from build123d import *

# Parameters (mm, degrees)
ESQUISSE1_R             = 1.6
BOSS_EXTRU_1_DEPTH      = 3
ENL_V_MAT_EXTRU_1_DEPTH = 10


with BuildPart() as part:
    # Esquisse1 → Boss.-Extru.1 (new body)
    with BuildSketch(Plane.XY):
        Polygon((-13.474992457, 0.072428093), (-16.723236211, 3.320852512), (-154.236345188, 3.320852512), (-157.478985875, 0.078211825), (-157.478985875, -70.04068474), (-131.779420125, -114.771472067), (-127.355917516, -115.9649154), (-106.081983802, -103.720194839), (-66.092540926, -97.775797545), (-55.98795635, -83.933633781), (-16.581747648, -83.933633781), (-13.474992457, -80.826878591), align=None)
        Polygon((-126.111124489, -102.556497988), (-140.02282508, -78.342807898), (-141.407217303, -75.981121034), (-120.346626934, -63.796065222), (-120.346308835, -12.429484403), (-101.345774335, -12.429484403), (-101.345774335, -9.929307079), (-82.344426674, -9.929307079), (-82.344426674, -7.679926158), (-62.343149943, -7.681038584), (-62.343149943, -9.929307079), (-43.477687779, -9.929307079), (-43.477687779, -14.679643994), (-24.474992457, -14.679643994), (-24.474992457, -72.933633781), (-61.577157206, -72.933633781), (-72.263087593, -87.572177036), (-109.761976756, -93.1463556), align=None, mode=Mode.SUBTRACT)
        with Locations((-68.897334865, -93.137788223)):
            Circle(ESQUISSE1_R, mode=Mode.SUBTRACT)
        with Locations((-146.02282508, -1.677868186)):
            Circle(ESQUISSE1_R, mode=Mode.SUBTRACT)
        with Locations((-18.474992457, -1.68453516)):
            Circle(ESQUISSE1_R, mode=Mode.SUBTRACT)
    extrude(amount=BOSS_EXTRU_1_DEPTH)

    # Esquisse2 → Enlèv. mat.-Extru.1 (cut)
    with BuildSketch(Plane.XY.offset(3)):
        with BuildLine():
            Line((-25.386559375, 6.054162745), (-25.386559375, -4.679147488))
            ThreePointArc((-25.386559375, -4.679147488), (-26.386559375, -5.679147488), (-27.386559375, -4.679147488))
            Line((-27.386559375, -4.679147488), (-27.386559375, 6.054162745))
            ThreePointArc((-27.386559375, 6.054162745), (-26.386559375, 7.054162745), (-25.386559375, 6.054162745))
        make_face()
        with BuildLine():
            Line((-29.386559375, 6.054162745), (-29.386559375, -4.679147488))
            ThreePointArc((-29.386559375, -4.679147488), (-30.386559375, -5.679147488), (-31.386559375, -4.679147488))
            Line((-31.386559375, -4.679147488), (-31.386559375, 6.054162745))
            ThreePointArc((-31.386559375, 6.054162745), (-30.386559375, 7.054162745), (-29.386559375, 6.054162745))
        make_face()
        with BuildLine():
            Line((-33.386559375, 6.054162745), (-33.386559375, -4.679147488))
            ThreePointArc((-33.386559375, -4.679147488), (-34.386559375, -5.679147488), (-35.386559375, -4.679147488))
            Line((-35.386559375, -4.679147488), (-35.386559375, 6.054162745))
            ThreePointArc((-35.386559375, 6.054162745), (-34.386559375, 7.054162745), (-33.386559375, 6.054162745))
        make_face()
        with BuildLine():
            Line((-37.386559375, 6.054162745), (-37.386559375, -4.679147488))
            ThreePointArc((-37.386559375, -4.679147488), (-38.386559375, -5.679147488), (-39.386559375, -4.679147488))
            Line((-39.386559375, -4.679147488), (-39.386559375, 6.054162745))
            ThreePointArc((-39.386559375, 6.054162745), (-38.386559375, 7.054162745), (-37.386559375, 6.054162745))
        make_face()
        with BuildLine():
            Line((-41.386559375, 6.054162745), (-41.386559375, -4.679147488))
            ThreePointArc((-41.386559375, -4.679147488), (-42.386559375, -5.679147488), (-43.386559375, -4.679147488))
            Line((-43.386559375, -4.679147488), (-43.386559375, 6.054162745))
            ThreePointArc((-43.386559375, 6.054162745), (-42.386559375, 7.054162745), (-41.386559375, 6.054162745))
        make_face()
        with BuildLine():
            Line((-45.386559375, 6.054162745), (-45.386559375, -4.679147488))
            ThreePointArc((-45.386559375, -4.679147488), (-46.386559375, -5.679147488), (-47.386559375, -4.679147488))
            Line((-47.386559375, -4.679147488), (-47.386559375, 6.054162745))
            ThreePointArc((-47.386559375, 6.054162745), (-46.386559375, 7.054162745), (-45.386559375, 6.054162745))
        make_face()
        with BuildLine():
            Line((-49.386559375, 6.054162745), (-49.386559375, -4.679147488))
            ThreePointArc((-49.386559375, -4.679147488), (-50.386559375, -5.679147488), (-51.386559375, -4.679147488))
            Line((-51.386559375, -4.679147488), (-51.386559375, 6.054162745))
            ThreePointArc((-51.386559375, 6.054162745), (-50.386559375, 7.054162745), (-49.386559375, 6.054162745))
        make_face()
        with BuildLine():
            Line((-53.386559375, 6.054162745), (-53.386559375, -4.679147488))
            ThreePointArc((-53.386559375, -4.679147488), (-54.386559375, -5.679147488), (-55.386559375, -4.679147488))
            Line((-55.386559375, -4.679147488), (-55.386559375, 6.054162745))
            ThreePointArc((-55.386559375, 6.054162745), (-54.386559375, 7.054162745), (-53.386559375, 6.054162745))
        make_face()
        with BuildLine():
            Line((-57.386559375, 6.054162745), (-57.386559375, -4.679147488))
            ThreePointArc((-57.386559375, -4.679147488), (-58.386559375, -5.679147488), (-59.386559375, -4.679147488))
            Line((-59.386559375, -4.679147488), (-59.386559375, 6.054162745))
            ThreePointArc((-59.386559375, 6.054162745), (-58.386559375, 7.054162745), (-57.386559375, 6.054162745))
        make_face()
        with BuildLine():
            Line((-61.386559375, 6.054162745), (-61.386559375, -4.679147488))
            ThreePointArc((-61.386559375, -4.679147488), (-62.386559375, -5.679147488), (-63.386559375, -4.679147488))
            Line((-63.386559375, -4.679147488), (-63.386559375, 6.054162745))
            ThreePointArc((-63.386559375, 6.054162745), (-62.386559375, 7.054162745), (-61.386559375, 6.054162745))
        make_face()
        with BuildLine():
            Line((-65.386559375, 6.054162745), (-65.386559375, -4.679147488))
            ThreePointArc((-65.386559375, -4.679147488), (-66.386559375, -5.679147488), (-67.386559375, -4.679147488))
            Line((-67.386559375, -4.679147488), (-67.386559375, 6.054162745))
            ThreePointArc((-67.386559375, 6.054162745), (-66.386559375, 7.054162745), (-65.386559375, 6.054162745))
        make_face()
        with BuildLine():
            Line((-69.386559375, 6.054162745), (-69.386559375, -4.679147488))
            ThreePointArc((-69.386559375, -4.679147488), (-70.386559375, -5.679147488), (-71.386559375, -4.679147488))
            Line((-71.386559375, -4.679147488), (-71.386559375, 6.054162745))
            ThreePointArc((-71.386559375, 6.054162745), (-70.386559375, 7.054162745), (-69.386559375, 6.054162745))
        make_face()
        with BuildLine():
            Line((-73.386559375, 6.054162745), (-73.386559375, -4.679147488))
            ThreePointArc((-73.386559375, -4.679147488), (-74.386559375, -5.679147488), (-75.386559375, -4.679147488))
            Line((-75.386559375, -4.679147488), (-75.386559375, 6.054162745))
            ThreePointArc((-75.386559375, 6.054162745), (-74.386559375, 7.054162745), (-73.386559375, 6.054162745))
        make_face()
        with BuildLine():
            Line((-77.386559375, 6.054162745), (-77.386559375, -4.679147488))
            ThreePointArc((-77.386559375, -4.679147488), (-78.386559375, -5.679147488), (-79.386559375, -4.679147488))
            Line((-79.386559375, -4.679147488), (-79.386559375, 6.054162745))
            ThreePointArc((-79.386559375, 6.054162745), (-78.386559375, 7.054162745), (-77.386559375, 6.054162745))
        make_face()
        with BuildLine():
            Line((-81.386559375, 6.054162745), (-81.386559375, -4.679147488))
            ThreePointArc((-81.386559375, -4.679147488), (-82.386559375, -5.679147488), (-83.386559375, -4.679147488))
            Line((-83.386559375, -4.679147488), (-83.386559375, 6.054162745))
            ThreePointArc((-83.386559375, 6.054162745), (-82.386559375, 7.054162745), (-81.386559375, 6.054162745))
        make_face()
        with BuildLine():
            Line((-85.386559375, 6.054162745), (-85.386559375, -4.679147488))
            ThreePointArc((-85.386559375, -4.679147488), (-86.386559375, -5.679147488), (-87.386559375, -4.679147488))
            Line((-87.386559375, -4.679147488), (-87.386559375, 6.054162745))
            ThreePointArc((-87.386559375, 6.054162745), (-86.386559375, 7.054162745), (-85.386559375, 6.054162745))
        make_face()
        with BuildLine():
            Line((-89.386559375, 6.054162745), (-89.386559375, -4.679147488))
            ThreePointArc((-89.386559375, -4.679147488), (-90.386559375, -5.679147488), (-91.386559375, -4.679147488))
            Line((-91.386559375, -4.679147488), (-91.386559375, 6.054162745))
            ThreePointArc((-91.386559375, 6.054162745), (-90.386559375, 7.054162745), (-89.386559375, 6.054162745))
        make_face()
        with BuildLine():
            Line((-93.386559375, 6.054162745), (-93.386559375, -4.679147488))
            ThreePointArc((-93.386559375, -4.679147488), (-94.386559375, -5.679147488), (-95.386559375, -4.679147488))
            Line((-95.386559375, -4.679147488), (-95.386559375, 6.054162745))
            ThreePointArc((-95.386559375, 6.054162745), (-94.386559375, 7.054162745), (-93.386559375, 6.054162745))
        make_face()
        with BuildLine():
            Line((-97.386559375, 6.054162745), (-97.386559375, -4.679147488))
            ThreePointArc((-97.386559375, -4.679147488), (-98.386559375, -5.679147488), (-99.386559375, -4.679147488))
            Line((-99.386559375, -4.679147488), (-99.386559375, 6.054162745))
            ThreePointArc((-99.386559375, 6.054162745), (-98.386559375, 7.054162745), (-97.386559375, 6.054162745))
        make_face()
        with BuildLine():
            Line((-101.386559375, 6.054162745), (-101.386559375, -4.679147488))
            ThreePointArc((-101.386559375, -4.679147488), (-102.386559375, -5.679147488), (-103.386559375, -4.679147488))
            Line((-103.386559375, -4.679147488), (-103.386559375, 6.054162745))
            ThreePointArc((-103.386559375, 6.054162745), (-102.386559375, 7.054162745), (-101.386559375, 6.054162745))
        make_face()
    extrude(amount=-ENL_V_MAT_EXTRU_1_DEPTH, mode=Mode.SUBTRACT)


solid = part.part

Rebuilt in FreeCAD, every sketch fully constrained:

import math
import FreeCAD as App
import Part
import Sketcher
from FreeCAD import Vector
Q = App.Units.Quantity


def add_polygon(sketch, points):
    """Adds a closed chain of lines whose ends are joined by coincident constraints."""
    first, n = sketch.GeometryCount, len(points)
    for a, b in zip(points, points[1:] + points[:1]):
        sketch.addGeometry(Part.LineSegment(App.Vector(*a, 0), App.Vector(*b, 0)), False)
    for i in range(n):
        sketch.addConstraint(Sketcher.Constraint("Coincident", first + i, 2, first + (i + 1) % n, 1))

doc = App.newDocument("Part")
params = doc.addObject("Spreadsheet::Sheet", "Params")
for row, (alias, value) in enumerate([
    ("sketch1_diameter", "3.2 mm"),
    ("pad1_length", "3 mm"),
    ("sketch2_radius", "1 mm"),
    ("pocket1_length", "10 mm"),
], start=1):
    params.set(f"A{row}", alias)
    params.set(f"B{row}", "=" + value)
    params.setAlias(f"B{row}", alias)

body = doc.addObject("PartDesign::Body", "Body")

sketch1 = body.newObject("Sketcher::SketchObject", "Sketch")
sketch1.AttachmentSupport = (doc.getObject("XY_Plane"), [""])
sketch1.MapMode = "FlatFace"
add_polygon(sketch1, [(-13.474992, 0.072428), (-16.723236, 3.320853), (-154.236345, 3.320853), (-157.478986, 0.078212), (-157.478986, -70.040685), (-131.77942, -114.771472), (-127.355918, -115.964915), (-106.081984, -103.720195), (-66.092541, -97.775798), (-55.987956, -83.933634), (-16.581748, -83.933634), (-13.474992, -80.826879)])
add_polygon(sketch1, [(-109.761977, -93.146356), (-126.111124, -102.556498), (-140.022825, -78.342808), (-141.407217, -75.981121), (-120.346627, -63.796065), (-120.346309, -12.429484), (-101.345774, -12.429484), (-101.345774, -9.929307), (-82.344427, -9.929307), (-82.344427, -7.679926), (-62.34315, -7.681039), (-62.34315, -9.929307), (-43.477688, -9.929307), (-43.477688, -14.679644), (-24.474992, -14.679644), (-24.474992, -72.933634), (-61.577157, -72.933634), (-72.263088, -87.572177)])
sketch1.addGeometry(Part.Circle(Vector(-68.897335, -93.137788, 0), Vector(0, 0, 1), 1.6), False)
sketch1.addGeometry(Part.Circle(Vector(-146.022825, -1.677868, 0), Vector(0, 0, 1), 1.6), False)
sketch1.addGeometry(Part.Circle(Vector(-18.474992, -1.684535, 0), Vector(0, 0, 1), 1.6), False)
sketch1.addConstraint(Sketcher.Constraint("Horizontal", 1))
sketch1.addConstraint(Sketcher.Constraint("Vertical", 3))
sketch1.addConstraint(Sketcher.Constraint("Horizontal", 9))
sketch1.addConstraint(Sketcher.Constraint("Vertical", 11))
sketch1.addConstraint(Sketcher.Constraint("Horizontal", 17))
sketch1.addConstraint(Sketcher.Constraint("Vertical", 18))
sketch1.addConstraint(Sketcher.Constraint("Horizontal", 19))
sketch1.addConstraint(Sketcher.Constraint("Vertical", 20))
sketch1.addConstraint(Sketcher.Constraint("Vertical", 22))
sketch1.addConstraint(Sketcher.Constraint("Horizontal", 23))
sketch1.addConstraint(Sketcher.Constraint("Vertical", 24))
sketch1.addConstraint(Sketcher.Constraint("Horizontal", 25))
sketch1.addConstraint(Sketcher.Constraint("Vertical", 26))
sketch1.addConstraint(Sketcher.Constraint("Horizontal", 27))
sketch1.addConstraint(Sketcher.Constraint("Equal", 30, 31))
sketch1.addConstraint(Sketcher.Constraint("Equal", 31, 32))
sketch1.addConstraint(Sketcher.Constraint("Parallel", 2, 10))
sketch1.addConstraint(Sketcher.Constraint("Parallel", 6, 12))
sketch1.addConstraint(Sketcher.Constraint("Parallel", 4, 13))
sketch1.addConstraint(Sketcher.Constraint("Parallel", 8, 28))
sketch1.addConstraint(Sketcher.Constraint("Parallel", 7, 29))
sketch1.addConstraint(Sketcher.Constraint("Horizontal", 19, 2, 22, 2))
sketch1.addConstraint(Sketcher.Constraint("Diameter", 30, Q("3.2 mm")))
sketch1.addConstraint(Sketcher.Constraint("Angle", 2, Q("-135 deg")))
sketch1.addConstraint(Sketcher.Constraint("DistanceX", 32, 3, 10, 2, Q("5 mm")))
sketch1.addConstraint(Sketcher.Constraint("DistanceX", 25, 2, 32, 3, Q("6 mm")))
sketch1.addConstraint(Sketcher.Constraint("DistanceY", 9, 2, 26, 2, Q("11 mm")))
sketch1.addConstraint(Sketcher.Constraint("DistanceY", 30, 3, 2, 2, Q("93.216 mm")))
sketch1.addConstraint(Sketcher.Constraint("DistanceX", 1, 2, 1, 1, Q("137.513109 mm")))
sketch1.addConstraint(Sketcher.Constraint("DistanceX", 9, 1, 9, 2, Q("39.406209 mm")))
sketch1.addConstraint(Sketcher.Constraint("DistanceY", 20, 1, 20, 2, Q("2.249381 mm")))
sketch1.addConstraint(Sketcher.Constraint("DistanceY", 22, 2, 22, 1, Q("2.248268 mm")))
sketch1.addConstraint(Sketcher.Constraint("DistanceY", 26, 2, 26, 1, Q("58.25399 mm")))
sketch1.addConstraint(Sketcher.Constraint("DistanceX", 30, 3, 0, 2, Q("52.174099 mm")))
sketch1.addConstraint(Sketcher.Constraint("DistanceY", 9, 2, 32, 3, Q("82.249099 mm")))
sketch1.addConstraint(Sketcher.Constraint("DistanceX", 13, 2, 12, 2, Q("13.911701 mm")))
sketch1.addConstraint(Sketcher.Constraint("DistanceX", 14, 2, 5, 2, Q("14.0513 mm")))
sketch1.addConstraint(Sketcher.Constraint("DistanceX", 13, 2, 15, 2, Q("19.676198 mm")))
sketch1.addConstraint(Sketcher.Constraint("DistanceX", 31, 3, 19, 2, Q("63.678398 mm")))
sketch1.addConstraint(Sketcher.Constraint("DistanceX", 27, 2, 8, 2, Q("5.589201 mm")))
sketch1.addConstraint(Sketcher.Constraint("Distance", 0, Q("4.593838 mm")))
sketch1.addConstraint(Sketcher.Constraint("Distance", 5, Q("4.581668 mm")))
sketch1.addConstraint(Sketcher.Constraint("Distance", 6, Q("24.546149 mm")))
sketch1.addConstraint(Sketcher.Constraint("Distance", 16, Q("51.366581 mm")))
sketch1.addConstraint(Sketcher.Constraint("Distance", 28, Q("18.123908 mm")))
sketch1.addConstraint(Sketcher.Constraint("DistanceX", 17, 1, 17, 2, Q("19.000535 mm")))
sketch1.addConstraint(Sketcher.Constraint("DistanceX", 19, 1, 19, 2, Q("19.001348 mm")))
sketch1.addConstraint(Sketcher.Constraint("DistanceX", 23, 1, 23, 2, Q("18.865462 mm")))
sketch1.addConstraint(Sketcher.Constraint("DistanceX", 25, 1, 25, 2, Q("19.002695 mm")))
sketch1.addConstraint(Sketcher.Constraint("DistanceX", 27, 2, 27, 1, Q("37.102165 mm")))
sketch1.addConstraint(Sketcher.Constraint("DistanceY", 3, 2, 3, 1, Q("70.118897 mm")))
sketch1.addConstraint(Sketcher.Constraint("DistanceY", 11, 1, 11, 2, Q("80.899307 mm")))
sketch1.addConstraint(Sketcher.Constraint("DistanceY", 18, 1, 18, 2, Q("2.500177 mm")))
sketch1.addConstraint(Sketcher.Constraint("DistanceY", 24, 2, 24, 1, Q("4.750337 mm")))
sketch1.addConstraint(Sketcher.Constraint("DistanceY", 30, 3, -1, 1, Q("93.137788 mm")))
sketch1.addConstraint(Sketcher.Constraint("DistanceY", 31, 3, -1, 1, Q("1.677868 mm")))
sketch1.addConstraint(Sketcher.Constraint("DistanceX", 4, 2, -1, 1, Q("131.77942 mm")))
sketch1.addConstraint(Sketcher.Constraint("DistanceX", 7, 2, -1, 1, Q("66.092541 mm")))
sketch1.addConstraint(Sketcher.Constraint("DistanceY", 10, 2, -1, 1, Q("80.826879 mm")))
sketch1.addConstraint(Sketcher.Constraint("DistanceY", 14, 2, -1, 1, Q("75.981121 mm")))
sketch1.addConstraint(Sketcher.Constraint("DistanceX", 16, 2, -1, 1, Q("120.346309 mm")))
sketch1.addConstraint(Sketcher.Constraint("DistanceX", 21, 2, -1, 1, Q("62.34315 mm")))
sketch1.addConstraint(Sketcher.Constraint("DistanceX", 31, 3, 30, 3, Q("77.12549 mm")))
sketch1.addConstraint(Sketcher.Constraint("DistanceX", 3, 2, 5, 2, Q("30.123068 mm")))
sketch1.addConstraint(Sketcher.Constraint("DistanceY", 5, 2, 3, 2, Q("45.924231 mm")))
sketch1.addConstraint(Sketcher.Constraint("DistanceY", 5, 2, 6, 2, Q("12.244721 mm")))
sketch1.addConstraint(Sketcher.Constraint("DistanceY", 7, 2, 30, 3, Q("4.638009 mm")))
sketch1.addConstraint(Sketcher.Constraint("DistanceX", 12, 2, 6, 2, Q("20.029141 mm")))
sketch1.addConstraint(Sketcher.Constraint("DistanceY", 12, 2, 30, 3, Q("9.41871 mm")))
sketch1.setExpression("Constraints[52]", "Params.sketch1_diameter")
pad1 = body.newObject("PartDesign::Pad", "Pad")
pad1.Profile = sketch1
pad1.setExpression("Length", "Params.pad1_length")

sketch2 = body.newObject("Sketcher::SketchObject", "Sketch001")
sketch2.AttachmentSupport = (doc.getObject("XY_Plane"), [""])
sketch2.MapMode = "FlatFace"
sketch2.AttachmentOffset = App.Placement(Vector(0, 0, 3), App.Rotation())
sketch2.addGeometry(Part.LineSegment(Vector(-25.386559, -4.679147, 0), Vector(-25.386559, 6.054163, 0)), False)
sketch2.addGeometry(Part.ArcOfCircle(Part.Circle(Vector(-26.386559, 6.054163, 0), Vector(0, 0, 1), 1), math.radians(0), math.radians(180)), False)
sketch2.addGeometry(Part.LineSegment(Vector(-27.386559, 6.054163, 0), Vector(-27.386559, -4.679147, 0)), False)
sketch2.addGeometry(Part.ArcOfCircle(Part.Circle(Vector(-26.386559, -4.679147, 0), Vector(0, 0, 1), 1), math.radians(180), math.radians(360)), False)
sketch2.addGeometry(Part.LineSegment(Vector(-29.386559, -4.679147, 0), Vector(-29.386559, 6.054163, 0)), False)
sketch2.addGeometry(Part.ArcOfCircle(Part.Circle(Vector(-30.386559, 6.054163, 0), Vector(0, 0, 1), 1), math.radians(0), math.radians(180)), False)
sketch2.addGeometry(Part.LineSegment(Vector(-31.386559, 6.054163, 0), Vector(-31.386559, -4.679147, 0)), False)
sketch2.addGeometry(Part.ArcOfCircle(Part.Circle(Vector(-30.386559, -4.679147, 0), Vector(0, 0, 1), 1), math.radians(180), math.radians(360)), False)
sketch2.addGeometry(Part.LineSegment(Vector(-33.386559, -4.679147, 0), Vector(-33.386559, 6.054163, 0)), False)
sketch2.addGeometry(Part.ArcOfCircle(Part.Circle(Vector(-34.386559, 6.054163, 0), Vector(0, 0, 1), 1), math.radians(0), math.radians(180)), False)
sketch2.addGeometry(Part.LineSegment(Vector(-35.386559, 6.054163, 0), Vector(-35.386559, -4.679147, 0)), False)
sketch2.addGeometry(Part.ArcOfCircle(Part.Circle(Vector(-34.386559, -4.679147, 0), Vector(0, 0, 1), 1), math.radians(180), math.radians(360)), False)
sketch2.addGeometry(Part.LineSegment(Vector(-37.386559, -4.679147, 0), Vector(-37.386559, 6.054163, 0)), False)
sketch2.addGeometry(Part.ArcOfCircle(Part.Circle(Vector(-38.386559, 6.054163, 0), Vector(0, 0, 1), 1), math.radians(0), math.radians(180)), False)
sketch2.addGeometry(Part.LineSegment(Vector(-39.386559, 6.054163, 0), Vector(-39.386559, -4.679147, 0)), False)
sketch2.addGeometry(Part.ArcOfCircle(Part.Circle(Vector(-38.386559, -4.679147, 0), Vector(0, 0, 1), 1), math.radians(180), math.radians(360)), False)
sketch2.addGeometry(Part.LineSegment(Vector(-41.386559, -4.679147, 0), Vector(-41.386559, 6.054163, 0)), False)
sketch2.addGeometry(Part.ArcOfCircle(Part.Circle(Vector(-42.386559, 6.054163, 0), Vector(0, 0, 1), 1), math.radians(0), math.radians(180)), False)
sketch2.addGeometry(Part.LineSegment(Vector(-43.386559, 6.054163, 0), Vector(-43.386559, -4.679147, 0)), False)
sketch2.addGeometry(Part.ArcOfCircle(Part.Circle(Vector(-42.386559, -4.679147, 0), Vector(0, 0, 1), 1), math.radians(180), math.radians(360)), False)
sketch2.addGeometry(Part.LineSegment(Vector(-45.386559, -4.679147, 0), Vector(-45.386559, 6.054163, 0)), False)
sketch2.addGeometry(Part.ArcOfCircle(Part.Circle(Vector(-46.386559, 6.054163, 0), Vector(0, 0, 1), 1), math.radians(0), math.radians(180)), False)
sketch2.addGeometry(Part.LineSegment(Vector(-47.386559, 6.054163, 0), Vector(-47.386559, -4.679147, 0)), False)
sketch2.addGeometry(Part.ArcOfCircle(Part.Circle(Vector(-46.386559, -4.679147, 0), Vector(0, 0, 1), 1), math.radians(180), math.radians(360)), False)
sketch2.addGeometry(Part.LineSegment(Vector(-49.386559, -4.679147, 0), Vector(-49.386559, 6.054163, 0)), False)
sketch2.addGeometry(Part.ArcOfCircle(Part.Circle(Vector(-50.386559, 6.054163, 0), Vector(0, 0, 1), 1), math.radians(0), math.radians(180)), False)
sketch2.addGeometry(Part.LineSegment(Vector(-51.386559, 6.054163, 0), Vector(-51.386559, -4.679147, 0)), False)
sketch2.addGeometry(Part.ArcOfCircle(Part.Circle(Vector(-50.386559, -4.679147, 0), Vector(0, 0, 1), 1), math.radians(180), math.radians(360)), False)
sketch2.addGeometry(Part.LineSegment(Vector(-53.386559, -4.679147, 0), Vector(-53.386559, 6.054163, 0)), False)
sketch2.addGeometry(Part.ArcOfCircle(Part.Circle(Vector(-54.386559, 6.054163, 0), Vector(0, 0, 1), 1), math.radians(0), math.radians(180)), False)
sketch2.addGeometry(Part.LineSegment(Vector(-55.386559, 6.054163, 0), Vector(-55.386559, -4.679147, 0)), False)
sketch2.addGeometry(Part.ArcOfCircle(Part.Circle(Vector(-54.386559, -4.679147, 0), Vector(0, 0, 1), 1), math.radians(180), math.radians(360)), False)
sketch2.addGeometry(Part.LineSegment(Vector(-57.386559, -4.679147, 0), Vector(-57.386559, 6.054163, 0)), False)
sketch2.addGeometry(Part.ArcOfCircle(Part.Circle(Vector(-58.386559, 6.054163, 0), Vector(0, 0, 1), 1), math.radians(0), math.radians(180)), False)
sketch2.addGeometry(Part.LineSegment(Vector(-59.386559, 6.054163, 0), Vector(-59.386559, -4.679147, 0)), False)
sketch2.addGeometry(Part.ArcOfCircle(Part.Circle(Vector(-58.386559, -4.679147, 0), Vector(0, 0, 1), 1), math.radians(180), math.radians(360)), False)
sketch2.addGeometry(Part.LineSegment(Vector(-61.386559, -4.679147, 0), Vector(-61.386559, 6.054163, 0)), False)
sketch2.addGeometry(Part.ArcOfCircle(Part.Circle(Vector(-62.386559, 6.054163, 0), Vector(0, 0, 1), 1), math.radians(0), math.radians(180)), False)
sketch2.addGeometry(Part.LineSegment(Vector(-63.386559, 6.054163, 0), Vector(-63.386559, -4.679147, 0)), False)
sketch2.addGeometry(Part.ArcOfCircle(Part.Circle(Vector(-62.386559, -4.679147, 0), Vector(0, 0, 1), 1), math.radians(180), math.radians(360)), False)
sketch2.addGeometry(Part.LineSegment(Vector(-65.386559, -4.679147, 0), Vector(-65.386559, 6.054163, 0)), False)
sketch2.addGeometry(Part.ArcOfCircle(Part.Circle(Vector(-66.386559, 6.054163, 0), Vector(0, 0, 1), 1), math.radians(0), math.radians(180)), False)
sketch2.addGeometry(Part.LineSegment(Vector(-67.386559, 6.054163, 0), Vector(-67.386559, -4.679147, 0)), False)
sketch2.addGeometry(Part.ArcOfCircle(Part.Circle(Vector(-66.386559, -4.679147, 0), Vector(0, 0, 1), 1), math.radians(180), math.radians(360)), False)
sketch2.addGeometry(Part.LineSegment(Vector(-69.386559, -4.679147, 0), Vector(-69.386559, 6.054163, 0)), False)
sketch2.addGeometry(Part.ArcOfCircle(Part.Circle(Vector(-70.386559, 6.054163, 0), Vector(0, 0, 1), 1), math.radians(0), math.radians(180)), False)
sketch2.addGeometry(Part.LineSegment(Vector(-71.386559, 6.054163, 0), Vector(-71.386559, -4.679147, 0)), False)
sketch2.addGeometry(Part.ArcOfCircle(Part.Circle(Vector(-70.386559, -4.679147, 0), Vector(0, 0, 1), 1), math.radians(180), math.radians(360)), False)
sketch2.addGeometry(Part.LineSegment(Vector(-73.386559, -4.679147, 0), Vector(-73.386559, 6.054163, 0)), False)
sketch2.addGeometry(Part.ArcOfCircle(Part.Circle(Vector(-74.386559, 6.054163, 0), Vector(0, 0, 1), 1), math.radians(0), math.radians(180)), False)
sketch2.addGeometry(Part.LineSegment(Vector(-75.386559, 6.054163, 0), Vector(-75.386559, -4.679147, 0)), False)
sketch2.addGeometry(Part.ArcOfCircle(Part.Circle(Vector(-74.386559, -4.679147, 0), Vector(0, 0, 1), 1), math.radians(180), math.radians(360)), False)
sketch2.addGeometry(Part.LineSegment(Vector(-77.386559, -4.679147, 0), Vector(-77.386559, 6.054163, 0)), False)
sketch2.addGeometry(Part.ArcOfCircle(Part.Circle(Vector(-78.386559, 6.054163, 0), Vector(0, 0, 1), 1), math.radians(0), math.radians(180)), False)
sketch2.addGeometry(Part.LineSegment(Vector(-79.386559, 6.054163, 0), Vector(-79.386559, -4.679147, 0)), False)
sketch2.addGeometry(Part.ArcOfCircle(Part.Circle(Vector(-78.386559, -4.679147, 0), Vector(0, 0, 1), 1), math.radians(180), math.radians(360)), False)
sketch2.addGeometry(Part.LineSegment(Vector(-81.386559, -4.679147, 0), Vector(-81.386559, 6.054163, 0)), False)
sketch2.addGeometry(Part.ArcOfCircle(Part.Circle(Vector(-82.386559, 6.054163, 0), Vector(0, 0, 1), 1), math.radians(0), math.radians(180)), False)
sketch2.addGeometry(Part.LineSegment(Vector(-83.386559, 6.054163, 0), Vector(-83.386559, -4.679147, 0)), False)
sketch2.addGeometry(Part.ArcOfCircle(Part.Circle(Vector(-82.386559, -4.679147, 0), Vector(0, 0, 1), 1), math.radians(180), math.radians(360)), False)
sketch2.addGeometry(Part.LineSegment(Vector(-85.386559, -4.679147, 0), Vector(-85.386559, 6.054163, 0)), False)
sketch2.addGeometry(Part.ArcOfCircle(Part.Circle(Vector(-86.386559, 6.054163, 0), Vector(0, 0, 1), 1), math.radians(0), math.radians(180)), False)
sketch2.addGeometry(Part.LineSegment(Vector(-87.386559, 6.054163, 0), Vector(-87.386559, -4.679147, 0)), False)
sketch2.addGeometry(Part.ArcOfCircle(Part.Circle(Vector(-86.386559, -4.679147, 0), Vector(0, 0, 1), 1), math.radians(180), math.radians(360)), False)
sketch2.addGeometry(Part.LineSegment(Vector(-89.386559, -4.679147, 0), Vector(-89.386559, 6.054163, 0)), False)
sketch2.addGeometry(Part.ArcOfCircle(Part.Circle(Vector(-90.386559, 6.054163, 0), Vector(0, 0, 1), 1), math.radians(0), math.radians(180)), False)
sketch2.addGeometry(Part.LineSegment(Vector(-91.386559, 6.054163, 0), Vector(-91.386559, -4.679147, 0)), False)
sketch2.addGeometry(Part.ArcOfCircle(Part.Circle(Vector(-90.386559, -4.679147, 0), Vector(0, 0, 1), 1), math.radians(180), math.radians(360)), False)
sketch2.addGeometry(Part.LineSegment(Vector(-93.386559, -4.679147, 0), Vector(-93.386559, 6.054163, 0)), False)
sketch2.addGeometry(Part.ArcOfCircle(Part.Circle(Vector(-94.386559, 6.054163, 0), Vector(0, 0, 1), 1), math.radians(0), math.radians(180)), False)
sketch2.addGeometry(Part.LineSegment(Vector(-95.386559, 6.054163, 0), Vector(-95.386559, -4.679147, 0)), False)
sketch2.addGeometry(Part.ArcOfCircle(Part.Circle(Vector(-94.386559, -4.679147, 0), Vector(0, 0, 1), 1), math.radians(180), math.radians(360)), False)
sketch2.addGeometry(Part.LineSegment(Vector(-97.386559, -4.679147, 0), Vector(-97.386559, 6.054163, 0)), False)
sketch2.addGeometry(Part.ArcOfCircle(Part.Circle(Vector(-98.386559, 6.054163, 0), Vector(0, 0, 1), 1), math.radians(0), math.radians(180)), False)
sketch2.addGeometry(Part.LineSegment(Vector(-99.386559, 6.054163, 0), Vector(-99.386559, -4.679147, 0)), False)
sketch2.addGeometry(Part.ArcOfCircle(Part.Circle(Vector(-98.386559, -4.679147, 0), Vector(0, 0, 1), 1), math.radians(180), math.radians(360)), False)
sketch2.addGeometry(Part.LineSegment(Vector(-101.386559, -4.679147, 0), Vector(-101.386559, 6.054163, 0)), False)
sketch2.addGeometry(Part.ArcOfCircle(Part.Circle(Vector(-102.386559, 6.054163, 0), Vector(0, 0, 1), 1), math.radians(0), math.radians(180)), False)
sketch2.addGeometry(Part.LineSegment(Vector(-103.386559, 6.054163, 0), Vector(-103.386559, -4.679147, 0)), False)
sketch2.addGeometry(Part.ArcOfCircle(Part.Circle(Vector(-102.386559, -4.679147, 0), Vector(0, 0, 1), 1), math.radians(180), math.radians(360)), False)
sketch2.addConstraint(Sketcher.Constraint("Tangent", 0, 2, 1, 1))
sketch2.addConstraint(Sketcher.Constraint("Tangent", 1, 2, 2, 1))
sketch2.addConstraint(Sketcher.Constraint("Tangent", 2, 2, 3, 1))
sketch2.addConstraint(Sketcher.Constraint("Tangent", 3, 2, 0, 1))
sketch2.addConstraint(Sketcher.Constraint("Tangent", 4, 2, 5, 1))
sketch2.addConstraint(Sketcher.Constraint("Tangent", 5, 2, 6, 1))
sketch2.addConstraint(Sketcher.Constraint("Tangent", 6, 2, 7, 1))
sketch2.addConstraint(Sketcher.Constraint("Tangent", 7, 2, 4, 1))
sketch2.addConstraint(Sketcher.Constraint("Tangent", 8, 2, 9, 1))
sketch2.addConstraint(Sketcher.Constraint("Tangent", 9, 2, 10, 1))
sketch2.addConstraint(Sketcher.Constraint("Tangent", 10, 2, 11, 1))
sketch2.addConstraint(Sketcher.Constraint("Tangent", 11, 2, 8, 1))
sketch2.addConstraint(Sketcher.Constraint("Tangent", 12, 2, 13, 1))
sketch2.addConstraint(Sketcher.Constraint("Tangent", 13, 2, 14, 1))
sketch2.addConstraint(Sketcher.Constraint("Tangent", 14, 2, 15, 1))
sketch2.addConstraint(Sketcher.Constraint("Tangent", 15, 2, 12, 1))
sketch2.addConstraint(Sketcher.Constraint("Tangent", 16, 2, 17, 1))
sketch2.addConstraint(Sketcher.Constraint("Tangent", 17, 2, 18, 1))
sketch2.addConstraint(Sketcher.Constraint("Tangent", 18, 2, 19, 1))
sketch2.addConstraint(Sketcher.Constraint("Tangent", 19, 2, 16, 1))
sketch2.addConstraint(Sketcher.Constraint("Tangent", 20, 2, 21, 1))
sketch2.addConstraint(Sketcher.Constraint("Tangent", 21, 2, 22, 1))
sketch2.addConstraint(Sketcher.Constraint("Tangent", 22, 2, 23, 1))
sketch2.addConstraint(Sketcher.Constraint("Tangent", 23, 2, 20, 1))
sketch2.addConstraint(Sketcher.Constraint("Tangent", 24, 2, 25, 1))
sketch2.addConstraint(Sketcher.Constraint("Tangent", 25, 2, 26, 1))
sketch2.addConstraint(Sketcher.Constraint("Tangent", 26, 2, 27, 1))
sketch2.addConstraint(Sketcher.Constraint("Tangent", 27, 2, 24, 1))
sketch2.addConstraint(Sketcher.Constraint("Tangent", 28, 2, 29, 1))
sketch2.addConstraint(Sketcher.Constraint("Tangent", 29, 2, 30, 1))
sketch2.addConstraint(Sketcher.Constraint("Tangent", 30, 2, 31, 1))
sketch2.addConstraint(Sketcher.Constraint("Tangent", 31, 2, 28, 1))
sketch2.addConstraint(Sketcher.Constraint("Tangent", 32, 2, 33, 1))
sketch2.addConstraint(Sketcher.Constraint("Tangent", 33, 2, 34, 1))
sketch2.addConstraint(Sketcher.Constraint("Tangent", 34, 2, 35, 1))
sketch2.addConstraint(Sketcher.Constraint("Tangent", 35, 2, 32, 1))
sketch2.addConstraint(Sketcher.Constraint("Tangent", 36, 2, 37, 1))
sketch2.addConstraint(Sketcher.Constraint("Tangent", 37, 2, 38, 1))
sketch2.addConstraint(Sketcher.Constraint("Tangent", 38, 2, 39, 1))
sketch2.addConstraint(Sketcher.Constraint("Tangent", 39, 2, 36, 1))
sketch2.addConstraint(Sketcher.Constraint("Tangent", 40, 2, 41, 1))
sketch2.addConstraint(Sketcher.Constraint("Tangent", 41, 2, 42, 1))
sketch2.addConstraint(Sketcher.Constraint("Tangent", 42, 2, 43, 1))
sketch2.addConstraint(Sketcher.Constraint("Tangent", 43, 2, 40, 1))
sketch2.addConstraint(Sketcher.Constraint("Tangent", 44, 2, 45, 1))
sketch2.addConstraint(Sketcher.Constraint("Tangent", 45, 2, 46, 1))
sketch2.addConstraint(Sketcher.Constraint("Tangent", 46, 2, 47, 1))
sketch2.addConstraint(Sketcher.Constraint("Tangent", 47, 2, 44, 1))
sketch2.addConstraint(Sketcher.Constraint("Tangent", 48, 2, 49, 1))
sketch2.addConstraint(Sketcher.Constraint("Tangent", 49, 2, 50, 1))
sketch2.addConstraint(Sketcher.Constraint("Tangent", 50, 2, 51, 1))
sketch2.addConstraint(Sketcher.Constraint("Tangent", 51, 2, 48, 1))
sketch2.addConstraint(Sketcher.Constraint("Tangent", 52, 2, 53, 1))
sketch2.addConstraint(Sketcher.Constraint("Tangent", 53, 2, 54, 1))
sketch2.addConstraint(Sketcher.Constraint("Tangent", 54, 2, 55, 1))
sketch2.addConstraint(Sketcher.Constraint("Tangent", 55, 2, 52, 1))
sketch2.addConstraint(Sketcher.Constraint("Tangent", 56, 2, 57, 1))
sketch2.addConstraint(Sketcher.Constraint("Tangent", 57, 2, 58, 1))
sketch2.addConstraint(Sketcher.Constraint("Tangent", 58, 2, 59, 1))
sketch2.addConstraint(Sketcher.Constraint("Tangent", 59, 2, 56, 1))
sketch2.addConstraint(Sketcher.Constraint("Tangent", 60, 2, 61, 1))
sketch2.addConstraint(Sketcher.Constraint("Tangent", 61, 2, 62, 1))
sketch2.addConstraint(Sketcher.Constraint("Tangent", 62, 2, 63, 1))
sketch2.addConstraint(Sketcher.Constraint("Tangent", 63, 2, 60, 1))
sketch2.addConstraint(Sketcher.Constraint("Tangent", 64, 2, 65, 1))
sketch2.addConstraint(Sketcher.Constraint("Tangent", 65, 2, 66, 1))
sketch2.addConstraint(Sketcher.Constraint("Tangent", 66, 2, 67, 1))
sketch2.addConstraint(Sketcher.Constraint("Tangent", 67, 2, 64, 1))
sketch2.addConstraint(Sketcher.Constraint("Tangent", 68, 2, 69, 1))
sketch2.addConstraint(Sketcher.Constraint("Tangent", 69, 2, 70, 1))
sketch2.addConstraint(Sketcher.Constraint("Tangent", 70, 2, 71, 1))
sketch2.addConstraint(Sketcher.Constraint("Tangent", 71, 2, 68, 1))
sketch2.addConstraint(Sketcher.Constraint("Tangent", 72, 2, 73, 1))
sketch2.addConstraint(Sketcher.Constraint("Tangent", 73, 2, 74, 1))
sketch2.addConstraint(Sketcher.Constraint("Tangent", 74, 2, 75, 1))
sketch2.addConstraint(Sketcher.Constraint("Tangent", 75, 2, 72, 1))
sketch2.addConstraint(Sketcher.Constraint("Tangent", 76, 2, 77, 1))
sketch2.addConstraint(Sketcher.Constraint("Tangent", 77, 2, 78, 1))
sketch2.addConstraint(Sketcher.Constraint("Tangent", 78, 2, 79, 1))
sketch2.addConstraint(Sketcher.Constraint("Tangent", 79, 2, 76, 1))
sketch2.addConstraint(Sketcher.Constraint("Vertical", 0))
sketch2.addConstraint(Sketcher.Constraint("Vertical", 2))
sketch2.addConstraint(Sketcher.Constraint("Vertical", 4))
sketch2.addConstraint(Sketcher.Constraint("Vertical", 6))
sketch2.addConstraint(Sketcher.Constraint("Vertical", 8))
sketch2.addConstraint(Sketcher.Constraint("Vertical", 10))
sketch2.addConstraint(Sketcher.Constraint("Vertical", 12))
sketch2.addConstraint(Sketcher.Constraint("Vertical", 14))
sketch2.addConstraint(Sketcher.Constraint("Vertical", 16))
sketch2.addConstraint(Sketcher.Constraint("Vertical", 18))
sketch2.addConstraint(Sketcher.Constraint("Vertical", 20))
sketch2.addConstraint(Sketcher.Constraint("Vertical", 22))
sketch2.addConstraint(Sketcher.Constraint("Vertical", 24))
sketch2.addConstraint(Sketcher.Constraint("Vertical", 26))
sketch2.addConstraint(Sketcher.Constraint("Vertical", 28))
sketch2.addConstraint(Sketcher.Constraint("Vertical", 30))
sketch2.addConstraint(Sketcher.Constraint("Vertical", 32))
sketch2.addConstraint(Sketcher.Constraint("Vertical", 34))
sketch2.addConstraint(Sketcher.Constraint("Vertical", 36))
sketch2.addConstraint(Sketcher.Constraint("Vertical", 38))
sketch2.addConstraint(Sketcher.Constraint("Vertical", 40))
sketch2.addConstraint(Sketcher.Constraint("Vertical", 42))
sketch2.addConstraint(Sketcher.Constraint("Vertical", 44))
sketch2.addConstraint(Sketcher.Constraint("Vertical", 46))
sketch2.addConstraint(Sketcher.Constraint("Vertical", 48))
sketch2.addConstraint(Sketcher.Constraint("Vertical", 50))
sketch2.addConstraint(Sketcher.Constraint("Vertical", 52))
sketch2.addConstraint(Sketcher.Constraint("Vertical", 54))
sketch2.addConstraint(Sketcher.Constraint("Vertical", 56))
sketch2.addConstraint(Sketcher.Constraint("Vertical", 58))
sketch2.addConstraint(Sketcher.Constraint("Vertical", 60))
sketch2.addConstraint(Sketcher.Constraint("Vertical", 62))
sketch2.addConstraint(Sketcher.Constraint("Vertical", 64))
sketch2.addConstraint(Sketcher.Constraint("Vertical", 66))
sketch2.addConstraint(Sketcher.Constraint("Vertical", 68))
sketch2.addConstraint(Sketcher.Constraint("Vertical", 70))
sketch2.addConstraint(Sketcher.Constraint("Vertical", 72))
sketch2.addConstraint(Sketcher.Constraint("Vertical", 74))
sketch2.addConstraint(Sketcher.Constraint("Vertical", 76))
sketch2.addConstraint(Sketcher.Constraint("Vertical", 78))
sketch2.addConstraint(Sketcher.Constraint("Equal", 3, 5))
sketch2.addConstraint(Sketcher.Constraint("Equal", 7, 9))
sketch2.addConstraint(Sketcher.Constraint("Equal", 11, 13))
sketch2.addConstraint(Sketcher.Constraint("Equal", 15, 17))
sketch2.addConstraint(Sketcher.Constraint("Equal", 19, 21))
sketch2.addConstraint(Sketcher.Constraint("Equal", 23, 25))
sketch2.addConstraint(Sketcher.Constraint("Equal", 27, 29))
sketch2.addConstraint(Sketcher.Constraint("Equal", 31, 33))
sketch2.addConstraint(Sketcher.Constraint("Equal", 35, 37))
sketch2.addConstraint(Sketcher.Constraint("Equal", 39, 41))
sketch2.addConstraint(Sketcher.Constraint("Equal", 43, 45))
sketch2.addConstraint(Sketcher.Constraint("Equal", 47, 49))
sketch2.addConstraint(Sketcher.Constraint("Equal", 51, 53))
sketch2.addConstraint(Sketcher.Constraint("Equal", 55, 57))
sketch2.addConstraint(Sketcher.Constraint("Equal", 59, 61))
sketch2.addConstraint(Sketcher.Constraint("Equal", 63, 65))
sketch2.addConstraint(Sketcher.Constraint("Equal", 67, 69))
sketch2.addConstraint(Sketcher.Constraint("Equal", 71, 73))
sketch2.addConstraint(Sketcher.Constraint("Equal", 75, 77))
sketch2.addConstraint(Sketcher.Constraint("Horizontal", 1, 3, 5, 3))
sketch2.addConstraint(Sketcher.Constraint("Horizontal", 3, 3, 7, 3))
sketch2.addConstraint(Sketcher.Constraint("Horizontal", 5, 3, 9, 3))
sketch2.addConstraint(Sketcher.Constraint("Horizontal", 7, 3, 11, 3))
sketch2.addConstraint(Sketcher.Constraint("Horizontal", 9, 3, 13, 3))
sketch2.addConstraint(Sketcher.Constraint("Horizontal", 11, 3, 15, 3))
sketch2.addConstraint(Sketcher.Constraint("Horizontal", 13, 3, 17, 3))
sketch2.addConstraint(Sketcher.Constraint("Horizontal", 15, 3, 19, 3))
sketch2.addConstraint(Sketcher.Constraint("Horizontal", 17, 3, 21, 3))
sketch2.addConstraint(Sketcher.Constraint("Horizontal", 19, 3, 23, 3))
sketch2.addConstraint(Sketcher.Constraint("Horizontal", 21, 3, 25, 3))
sketch2.addConstraint(Sketcher.Constraint("Horizontal", 23, 3, 27, 3))
sketch2.addConstraint(Sketcher.Constraint("Horizontal", 25, 3, 29, 3))
sketch2.addConstraint(Sketcher.Constraint("Horizontal", 27, 3, 31, 3))
sketch2.addConstraint(Sketcher.Constraint("Horizontal", 29, 3, 33, 3))
sketch2.addConstraint(Sketcher.Constraint("Horizontal", 31, 3, 35, 3))
sketch2.addConstraint(Sketcher.Constraint("Horizontal", 33, 3, 37, 3))
sketch2.addConstraint(Sketcher.Constraint("Horizontal", 35, 3, 39, 3))
sketch2.addConstraint(Sketcher.Constraint("Horizontal", 37, 3, 41, 3))
sketch2.addConstraint(Sketcher.Constraint("Horizontal", 39, 3, 43, 3))
sketch2.addConstraint(Sketcher.Constraint("Horizontal", 41, 3, 45, 3))
sketch2.addConstraint(Sketcher.Constraint("Horizontal", 43, 3, 47, 3))
sketch2.addConstraint(Sketcher.Constraint("Horizontal", 45, 3, 49, 3))
sketch2.addConstraint(Sketcher.Constraint("Horizontal", 47, 3, 51, 3))
sketch2.addConstraint(Sketcher.Constraint("Horizontal", 49, 3, 53, 3))
sketch2.addConstraint(Sketcher.Constraint("Horizontal", 51, 3, 55, 3))
sketch2.addConstraint(Sketcher.Constraint("Horizontal", 53, 3, 57, 3))
sketch2.addConstraint(Sketcher.Constraint("Horizontal", 55, 3, 59, 3))
sketch2.addConstraint(Sketcher.Constraint("Horizontal", 57, 3, 61, 3))
sketch2.addConstraint(Sketcher.Constraint("Horizontal", 59, 3, 63, 3))
sketch2.addConstraint(Sketcher.Constraint("Horizontal", 61, 3, 65, 3))
sketch2.addConstraint(Sketcher.Constraint("Horizontal", 63, 3, 67, 3))
sketch2.addConstraint(Sketcher.Constraint("Horizontal", 65, 3, 69, 3))
sketch2.addConstraint(Sketcher.Constraint("Horizontal", 67, 3, 71, 3))
sketch2.addConstraint(Sketcher.Constraint("Horizontal", 69, 3, 73, 3))
sketch2.addConstraint(Sketcher.Constraint("Horizontal", 71, 3, 75, 3))
sketch2.addConstraint(Sketcher.Constraint("Horizontal", 73, 3, 77, 3))
sketch2.addConstraint(Sketcher.Constraint("Horizontal", 75, 3, 79, 3))
sketch2.addConstraint(Sketcher.Constraint("Radius", 1, Q("1 mm")))
sketch2.addConstraint(Sketcher.Constraint("DistanceY", 0, 1, 0, 2, Q("10.73331 mm")))
sketch2.addConstraint(Sketcher.Constraint("DistanceX", 1, 3, -1, 1, Q("26.386559 mm")))
sketch2.addConstraint(Sketcher.Constraint("DistanceX", 5, 3, -1, 1, Q("30.386559 mm")))
sketch2.addConstraint(Sketcher.Constraint("DistanceX", 9, 3, -1, 1, Q("34.386559 mm")))
sketch2.addConstraint(Sketcher.Constraint("DistanceX", 13, 3, -1, 1, Q("38.386559 mm")))
sketch2.addConstraint(Sketcher.Constraint("DistanceX", 17, 3, -1, 1, Q("42.386559 mm")))
sketch2.addConstraint(Sketcher.Constraint("DistanceX", 21, 3, -1, 1, Q("46.386559 mm")))
sketch2.addConstraint(Sketcher.Constraint("DistanceX", 25, 3, -1, 1, Q("50.386559 mm")))
sketch2.addConstraint(Sketcher.Constraint("DistanceX", 29, 3, -1, 1, Q("54.386559 mm")))
sketch2.addConstraint(Sketcher.Constraint("DistanceX", 33, 3, -1, 1, Q("58.386559 mm")))
sketch2.addConstraint(Sketcher.Constraint("DistanceX", 37, 3, -1, 1, Q("62.386559 mm")))
sketch2.addConstraint(Sketcher.Constraint("DistanceX", 41, 3, -1, 1, Q("66.386559 mm")))
sketch2.addConstraint(Sketcher.Constraint("DistanceX", 45, 3, -1, 1, Q("70.386559 mm")))
sketch2.addConstraint(Sketcher.Constraint("DistanceX", 49, 3, -1, 1, Q("74.386559 mm")))
sketch2.addConstraint(Sketcher.Constraint("DistanceX", 53, 3, -1, 1, Q("78.386559 mm")))
sketch2.addConstraint(Sketcher.Constraint("DistanceX", 57, 3, -1, 1, Q("82.386559 mm")))
sketch2.addConstraint(Sketcher.Constraint("DistanceX", 61, 3, -1, 1, Q("86.386559 mm")))
sketch2.addConstraint(Sketcher.Constraint("DistanceX", 65, 3, -1, 1, Q("90.386559 mm")))
sketch2.addConstraint(Sketcher.Constraint("DistanceX", 69, 3, -1, 1, Q("94.386559 mm")))
sketch2.addConstraint(Sketcher.Constraint("DistanceX", 73, 3, -1, 1, Q("98.386559 mm")))
sketch2.addConstraint(Sketcher.Constraint("DistanceX", 77, 3, -1, 1, Q("102.386559 mm")))
sketch2.addConstraint(Sketcher.Constraint("DistanceY", -1, 1, 1, 3, Q("6.054163 mm")))
sketch2.setExpression("Constraints[177]", "Params.sketch2_radius")
pocket1 = body.newObject("PartDesign::Pocket", "Pocket")
pocket1.Profile = sketch2
pocket1.setExpression("Length", "Params.pocket1_length")

doc.recompute()
